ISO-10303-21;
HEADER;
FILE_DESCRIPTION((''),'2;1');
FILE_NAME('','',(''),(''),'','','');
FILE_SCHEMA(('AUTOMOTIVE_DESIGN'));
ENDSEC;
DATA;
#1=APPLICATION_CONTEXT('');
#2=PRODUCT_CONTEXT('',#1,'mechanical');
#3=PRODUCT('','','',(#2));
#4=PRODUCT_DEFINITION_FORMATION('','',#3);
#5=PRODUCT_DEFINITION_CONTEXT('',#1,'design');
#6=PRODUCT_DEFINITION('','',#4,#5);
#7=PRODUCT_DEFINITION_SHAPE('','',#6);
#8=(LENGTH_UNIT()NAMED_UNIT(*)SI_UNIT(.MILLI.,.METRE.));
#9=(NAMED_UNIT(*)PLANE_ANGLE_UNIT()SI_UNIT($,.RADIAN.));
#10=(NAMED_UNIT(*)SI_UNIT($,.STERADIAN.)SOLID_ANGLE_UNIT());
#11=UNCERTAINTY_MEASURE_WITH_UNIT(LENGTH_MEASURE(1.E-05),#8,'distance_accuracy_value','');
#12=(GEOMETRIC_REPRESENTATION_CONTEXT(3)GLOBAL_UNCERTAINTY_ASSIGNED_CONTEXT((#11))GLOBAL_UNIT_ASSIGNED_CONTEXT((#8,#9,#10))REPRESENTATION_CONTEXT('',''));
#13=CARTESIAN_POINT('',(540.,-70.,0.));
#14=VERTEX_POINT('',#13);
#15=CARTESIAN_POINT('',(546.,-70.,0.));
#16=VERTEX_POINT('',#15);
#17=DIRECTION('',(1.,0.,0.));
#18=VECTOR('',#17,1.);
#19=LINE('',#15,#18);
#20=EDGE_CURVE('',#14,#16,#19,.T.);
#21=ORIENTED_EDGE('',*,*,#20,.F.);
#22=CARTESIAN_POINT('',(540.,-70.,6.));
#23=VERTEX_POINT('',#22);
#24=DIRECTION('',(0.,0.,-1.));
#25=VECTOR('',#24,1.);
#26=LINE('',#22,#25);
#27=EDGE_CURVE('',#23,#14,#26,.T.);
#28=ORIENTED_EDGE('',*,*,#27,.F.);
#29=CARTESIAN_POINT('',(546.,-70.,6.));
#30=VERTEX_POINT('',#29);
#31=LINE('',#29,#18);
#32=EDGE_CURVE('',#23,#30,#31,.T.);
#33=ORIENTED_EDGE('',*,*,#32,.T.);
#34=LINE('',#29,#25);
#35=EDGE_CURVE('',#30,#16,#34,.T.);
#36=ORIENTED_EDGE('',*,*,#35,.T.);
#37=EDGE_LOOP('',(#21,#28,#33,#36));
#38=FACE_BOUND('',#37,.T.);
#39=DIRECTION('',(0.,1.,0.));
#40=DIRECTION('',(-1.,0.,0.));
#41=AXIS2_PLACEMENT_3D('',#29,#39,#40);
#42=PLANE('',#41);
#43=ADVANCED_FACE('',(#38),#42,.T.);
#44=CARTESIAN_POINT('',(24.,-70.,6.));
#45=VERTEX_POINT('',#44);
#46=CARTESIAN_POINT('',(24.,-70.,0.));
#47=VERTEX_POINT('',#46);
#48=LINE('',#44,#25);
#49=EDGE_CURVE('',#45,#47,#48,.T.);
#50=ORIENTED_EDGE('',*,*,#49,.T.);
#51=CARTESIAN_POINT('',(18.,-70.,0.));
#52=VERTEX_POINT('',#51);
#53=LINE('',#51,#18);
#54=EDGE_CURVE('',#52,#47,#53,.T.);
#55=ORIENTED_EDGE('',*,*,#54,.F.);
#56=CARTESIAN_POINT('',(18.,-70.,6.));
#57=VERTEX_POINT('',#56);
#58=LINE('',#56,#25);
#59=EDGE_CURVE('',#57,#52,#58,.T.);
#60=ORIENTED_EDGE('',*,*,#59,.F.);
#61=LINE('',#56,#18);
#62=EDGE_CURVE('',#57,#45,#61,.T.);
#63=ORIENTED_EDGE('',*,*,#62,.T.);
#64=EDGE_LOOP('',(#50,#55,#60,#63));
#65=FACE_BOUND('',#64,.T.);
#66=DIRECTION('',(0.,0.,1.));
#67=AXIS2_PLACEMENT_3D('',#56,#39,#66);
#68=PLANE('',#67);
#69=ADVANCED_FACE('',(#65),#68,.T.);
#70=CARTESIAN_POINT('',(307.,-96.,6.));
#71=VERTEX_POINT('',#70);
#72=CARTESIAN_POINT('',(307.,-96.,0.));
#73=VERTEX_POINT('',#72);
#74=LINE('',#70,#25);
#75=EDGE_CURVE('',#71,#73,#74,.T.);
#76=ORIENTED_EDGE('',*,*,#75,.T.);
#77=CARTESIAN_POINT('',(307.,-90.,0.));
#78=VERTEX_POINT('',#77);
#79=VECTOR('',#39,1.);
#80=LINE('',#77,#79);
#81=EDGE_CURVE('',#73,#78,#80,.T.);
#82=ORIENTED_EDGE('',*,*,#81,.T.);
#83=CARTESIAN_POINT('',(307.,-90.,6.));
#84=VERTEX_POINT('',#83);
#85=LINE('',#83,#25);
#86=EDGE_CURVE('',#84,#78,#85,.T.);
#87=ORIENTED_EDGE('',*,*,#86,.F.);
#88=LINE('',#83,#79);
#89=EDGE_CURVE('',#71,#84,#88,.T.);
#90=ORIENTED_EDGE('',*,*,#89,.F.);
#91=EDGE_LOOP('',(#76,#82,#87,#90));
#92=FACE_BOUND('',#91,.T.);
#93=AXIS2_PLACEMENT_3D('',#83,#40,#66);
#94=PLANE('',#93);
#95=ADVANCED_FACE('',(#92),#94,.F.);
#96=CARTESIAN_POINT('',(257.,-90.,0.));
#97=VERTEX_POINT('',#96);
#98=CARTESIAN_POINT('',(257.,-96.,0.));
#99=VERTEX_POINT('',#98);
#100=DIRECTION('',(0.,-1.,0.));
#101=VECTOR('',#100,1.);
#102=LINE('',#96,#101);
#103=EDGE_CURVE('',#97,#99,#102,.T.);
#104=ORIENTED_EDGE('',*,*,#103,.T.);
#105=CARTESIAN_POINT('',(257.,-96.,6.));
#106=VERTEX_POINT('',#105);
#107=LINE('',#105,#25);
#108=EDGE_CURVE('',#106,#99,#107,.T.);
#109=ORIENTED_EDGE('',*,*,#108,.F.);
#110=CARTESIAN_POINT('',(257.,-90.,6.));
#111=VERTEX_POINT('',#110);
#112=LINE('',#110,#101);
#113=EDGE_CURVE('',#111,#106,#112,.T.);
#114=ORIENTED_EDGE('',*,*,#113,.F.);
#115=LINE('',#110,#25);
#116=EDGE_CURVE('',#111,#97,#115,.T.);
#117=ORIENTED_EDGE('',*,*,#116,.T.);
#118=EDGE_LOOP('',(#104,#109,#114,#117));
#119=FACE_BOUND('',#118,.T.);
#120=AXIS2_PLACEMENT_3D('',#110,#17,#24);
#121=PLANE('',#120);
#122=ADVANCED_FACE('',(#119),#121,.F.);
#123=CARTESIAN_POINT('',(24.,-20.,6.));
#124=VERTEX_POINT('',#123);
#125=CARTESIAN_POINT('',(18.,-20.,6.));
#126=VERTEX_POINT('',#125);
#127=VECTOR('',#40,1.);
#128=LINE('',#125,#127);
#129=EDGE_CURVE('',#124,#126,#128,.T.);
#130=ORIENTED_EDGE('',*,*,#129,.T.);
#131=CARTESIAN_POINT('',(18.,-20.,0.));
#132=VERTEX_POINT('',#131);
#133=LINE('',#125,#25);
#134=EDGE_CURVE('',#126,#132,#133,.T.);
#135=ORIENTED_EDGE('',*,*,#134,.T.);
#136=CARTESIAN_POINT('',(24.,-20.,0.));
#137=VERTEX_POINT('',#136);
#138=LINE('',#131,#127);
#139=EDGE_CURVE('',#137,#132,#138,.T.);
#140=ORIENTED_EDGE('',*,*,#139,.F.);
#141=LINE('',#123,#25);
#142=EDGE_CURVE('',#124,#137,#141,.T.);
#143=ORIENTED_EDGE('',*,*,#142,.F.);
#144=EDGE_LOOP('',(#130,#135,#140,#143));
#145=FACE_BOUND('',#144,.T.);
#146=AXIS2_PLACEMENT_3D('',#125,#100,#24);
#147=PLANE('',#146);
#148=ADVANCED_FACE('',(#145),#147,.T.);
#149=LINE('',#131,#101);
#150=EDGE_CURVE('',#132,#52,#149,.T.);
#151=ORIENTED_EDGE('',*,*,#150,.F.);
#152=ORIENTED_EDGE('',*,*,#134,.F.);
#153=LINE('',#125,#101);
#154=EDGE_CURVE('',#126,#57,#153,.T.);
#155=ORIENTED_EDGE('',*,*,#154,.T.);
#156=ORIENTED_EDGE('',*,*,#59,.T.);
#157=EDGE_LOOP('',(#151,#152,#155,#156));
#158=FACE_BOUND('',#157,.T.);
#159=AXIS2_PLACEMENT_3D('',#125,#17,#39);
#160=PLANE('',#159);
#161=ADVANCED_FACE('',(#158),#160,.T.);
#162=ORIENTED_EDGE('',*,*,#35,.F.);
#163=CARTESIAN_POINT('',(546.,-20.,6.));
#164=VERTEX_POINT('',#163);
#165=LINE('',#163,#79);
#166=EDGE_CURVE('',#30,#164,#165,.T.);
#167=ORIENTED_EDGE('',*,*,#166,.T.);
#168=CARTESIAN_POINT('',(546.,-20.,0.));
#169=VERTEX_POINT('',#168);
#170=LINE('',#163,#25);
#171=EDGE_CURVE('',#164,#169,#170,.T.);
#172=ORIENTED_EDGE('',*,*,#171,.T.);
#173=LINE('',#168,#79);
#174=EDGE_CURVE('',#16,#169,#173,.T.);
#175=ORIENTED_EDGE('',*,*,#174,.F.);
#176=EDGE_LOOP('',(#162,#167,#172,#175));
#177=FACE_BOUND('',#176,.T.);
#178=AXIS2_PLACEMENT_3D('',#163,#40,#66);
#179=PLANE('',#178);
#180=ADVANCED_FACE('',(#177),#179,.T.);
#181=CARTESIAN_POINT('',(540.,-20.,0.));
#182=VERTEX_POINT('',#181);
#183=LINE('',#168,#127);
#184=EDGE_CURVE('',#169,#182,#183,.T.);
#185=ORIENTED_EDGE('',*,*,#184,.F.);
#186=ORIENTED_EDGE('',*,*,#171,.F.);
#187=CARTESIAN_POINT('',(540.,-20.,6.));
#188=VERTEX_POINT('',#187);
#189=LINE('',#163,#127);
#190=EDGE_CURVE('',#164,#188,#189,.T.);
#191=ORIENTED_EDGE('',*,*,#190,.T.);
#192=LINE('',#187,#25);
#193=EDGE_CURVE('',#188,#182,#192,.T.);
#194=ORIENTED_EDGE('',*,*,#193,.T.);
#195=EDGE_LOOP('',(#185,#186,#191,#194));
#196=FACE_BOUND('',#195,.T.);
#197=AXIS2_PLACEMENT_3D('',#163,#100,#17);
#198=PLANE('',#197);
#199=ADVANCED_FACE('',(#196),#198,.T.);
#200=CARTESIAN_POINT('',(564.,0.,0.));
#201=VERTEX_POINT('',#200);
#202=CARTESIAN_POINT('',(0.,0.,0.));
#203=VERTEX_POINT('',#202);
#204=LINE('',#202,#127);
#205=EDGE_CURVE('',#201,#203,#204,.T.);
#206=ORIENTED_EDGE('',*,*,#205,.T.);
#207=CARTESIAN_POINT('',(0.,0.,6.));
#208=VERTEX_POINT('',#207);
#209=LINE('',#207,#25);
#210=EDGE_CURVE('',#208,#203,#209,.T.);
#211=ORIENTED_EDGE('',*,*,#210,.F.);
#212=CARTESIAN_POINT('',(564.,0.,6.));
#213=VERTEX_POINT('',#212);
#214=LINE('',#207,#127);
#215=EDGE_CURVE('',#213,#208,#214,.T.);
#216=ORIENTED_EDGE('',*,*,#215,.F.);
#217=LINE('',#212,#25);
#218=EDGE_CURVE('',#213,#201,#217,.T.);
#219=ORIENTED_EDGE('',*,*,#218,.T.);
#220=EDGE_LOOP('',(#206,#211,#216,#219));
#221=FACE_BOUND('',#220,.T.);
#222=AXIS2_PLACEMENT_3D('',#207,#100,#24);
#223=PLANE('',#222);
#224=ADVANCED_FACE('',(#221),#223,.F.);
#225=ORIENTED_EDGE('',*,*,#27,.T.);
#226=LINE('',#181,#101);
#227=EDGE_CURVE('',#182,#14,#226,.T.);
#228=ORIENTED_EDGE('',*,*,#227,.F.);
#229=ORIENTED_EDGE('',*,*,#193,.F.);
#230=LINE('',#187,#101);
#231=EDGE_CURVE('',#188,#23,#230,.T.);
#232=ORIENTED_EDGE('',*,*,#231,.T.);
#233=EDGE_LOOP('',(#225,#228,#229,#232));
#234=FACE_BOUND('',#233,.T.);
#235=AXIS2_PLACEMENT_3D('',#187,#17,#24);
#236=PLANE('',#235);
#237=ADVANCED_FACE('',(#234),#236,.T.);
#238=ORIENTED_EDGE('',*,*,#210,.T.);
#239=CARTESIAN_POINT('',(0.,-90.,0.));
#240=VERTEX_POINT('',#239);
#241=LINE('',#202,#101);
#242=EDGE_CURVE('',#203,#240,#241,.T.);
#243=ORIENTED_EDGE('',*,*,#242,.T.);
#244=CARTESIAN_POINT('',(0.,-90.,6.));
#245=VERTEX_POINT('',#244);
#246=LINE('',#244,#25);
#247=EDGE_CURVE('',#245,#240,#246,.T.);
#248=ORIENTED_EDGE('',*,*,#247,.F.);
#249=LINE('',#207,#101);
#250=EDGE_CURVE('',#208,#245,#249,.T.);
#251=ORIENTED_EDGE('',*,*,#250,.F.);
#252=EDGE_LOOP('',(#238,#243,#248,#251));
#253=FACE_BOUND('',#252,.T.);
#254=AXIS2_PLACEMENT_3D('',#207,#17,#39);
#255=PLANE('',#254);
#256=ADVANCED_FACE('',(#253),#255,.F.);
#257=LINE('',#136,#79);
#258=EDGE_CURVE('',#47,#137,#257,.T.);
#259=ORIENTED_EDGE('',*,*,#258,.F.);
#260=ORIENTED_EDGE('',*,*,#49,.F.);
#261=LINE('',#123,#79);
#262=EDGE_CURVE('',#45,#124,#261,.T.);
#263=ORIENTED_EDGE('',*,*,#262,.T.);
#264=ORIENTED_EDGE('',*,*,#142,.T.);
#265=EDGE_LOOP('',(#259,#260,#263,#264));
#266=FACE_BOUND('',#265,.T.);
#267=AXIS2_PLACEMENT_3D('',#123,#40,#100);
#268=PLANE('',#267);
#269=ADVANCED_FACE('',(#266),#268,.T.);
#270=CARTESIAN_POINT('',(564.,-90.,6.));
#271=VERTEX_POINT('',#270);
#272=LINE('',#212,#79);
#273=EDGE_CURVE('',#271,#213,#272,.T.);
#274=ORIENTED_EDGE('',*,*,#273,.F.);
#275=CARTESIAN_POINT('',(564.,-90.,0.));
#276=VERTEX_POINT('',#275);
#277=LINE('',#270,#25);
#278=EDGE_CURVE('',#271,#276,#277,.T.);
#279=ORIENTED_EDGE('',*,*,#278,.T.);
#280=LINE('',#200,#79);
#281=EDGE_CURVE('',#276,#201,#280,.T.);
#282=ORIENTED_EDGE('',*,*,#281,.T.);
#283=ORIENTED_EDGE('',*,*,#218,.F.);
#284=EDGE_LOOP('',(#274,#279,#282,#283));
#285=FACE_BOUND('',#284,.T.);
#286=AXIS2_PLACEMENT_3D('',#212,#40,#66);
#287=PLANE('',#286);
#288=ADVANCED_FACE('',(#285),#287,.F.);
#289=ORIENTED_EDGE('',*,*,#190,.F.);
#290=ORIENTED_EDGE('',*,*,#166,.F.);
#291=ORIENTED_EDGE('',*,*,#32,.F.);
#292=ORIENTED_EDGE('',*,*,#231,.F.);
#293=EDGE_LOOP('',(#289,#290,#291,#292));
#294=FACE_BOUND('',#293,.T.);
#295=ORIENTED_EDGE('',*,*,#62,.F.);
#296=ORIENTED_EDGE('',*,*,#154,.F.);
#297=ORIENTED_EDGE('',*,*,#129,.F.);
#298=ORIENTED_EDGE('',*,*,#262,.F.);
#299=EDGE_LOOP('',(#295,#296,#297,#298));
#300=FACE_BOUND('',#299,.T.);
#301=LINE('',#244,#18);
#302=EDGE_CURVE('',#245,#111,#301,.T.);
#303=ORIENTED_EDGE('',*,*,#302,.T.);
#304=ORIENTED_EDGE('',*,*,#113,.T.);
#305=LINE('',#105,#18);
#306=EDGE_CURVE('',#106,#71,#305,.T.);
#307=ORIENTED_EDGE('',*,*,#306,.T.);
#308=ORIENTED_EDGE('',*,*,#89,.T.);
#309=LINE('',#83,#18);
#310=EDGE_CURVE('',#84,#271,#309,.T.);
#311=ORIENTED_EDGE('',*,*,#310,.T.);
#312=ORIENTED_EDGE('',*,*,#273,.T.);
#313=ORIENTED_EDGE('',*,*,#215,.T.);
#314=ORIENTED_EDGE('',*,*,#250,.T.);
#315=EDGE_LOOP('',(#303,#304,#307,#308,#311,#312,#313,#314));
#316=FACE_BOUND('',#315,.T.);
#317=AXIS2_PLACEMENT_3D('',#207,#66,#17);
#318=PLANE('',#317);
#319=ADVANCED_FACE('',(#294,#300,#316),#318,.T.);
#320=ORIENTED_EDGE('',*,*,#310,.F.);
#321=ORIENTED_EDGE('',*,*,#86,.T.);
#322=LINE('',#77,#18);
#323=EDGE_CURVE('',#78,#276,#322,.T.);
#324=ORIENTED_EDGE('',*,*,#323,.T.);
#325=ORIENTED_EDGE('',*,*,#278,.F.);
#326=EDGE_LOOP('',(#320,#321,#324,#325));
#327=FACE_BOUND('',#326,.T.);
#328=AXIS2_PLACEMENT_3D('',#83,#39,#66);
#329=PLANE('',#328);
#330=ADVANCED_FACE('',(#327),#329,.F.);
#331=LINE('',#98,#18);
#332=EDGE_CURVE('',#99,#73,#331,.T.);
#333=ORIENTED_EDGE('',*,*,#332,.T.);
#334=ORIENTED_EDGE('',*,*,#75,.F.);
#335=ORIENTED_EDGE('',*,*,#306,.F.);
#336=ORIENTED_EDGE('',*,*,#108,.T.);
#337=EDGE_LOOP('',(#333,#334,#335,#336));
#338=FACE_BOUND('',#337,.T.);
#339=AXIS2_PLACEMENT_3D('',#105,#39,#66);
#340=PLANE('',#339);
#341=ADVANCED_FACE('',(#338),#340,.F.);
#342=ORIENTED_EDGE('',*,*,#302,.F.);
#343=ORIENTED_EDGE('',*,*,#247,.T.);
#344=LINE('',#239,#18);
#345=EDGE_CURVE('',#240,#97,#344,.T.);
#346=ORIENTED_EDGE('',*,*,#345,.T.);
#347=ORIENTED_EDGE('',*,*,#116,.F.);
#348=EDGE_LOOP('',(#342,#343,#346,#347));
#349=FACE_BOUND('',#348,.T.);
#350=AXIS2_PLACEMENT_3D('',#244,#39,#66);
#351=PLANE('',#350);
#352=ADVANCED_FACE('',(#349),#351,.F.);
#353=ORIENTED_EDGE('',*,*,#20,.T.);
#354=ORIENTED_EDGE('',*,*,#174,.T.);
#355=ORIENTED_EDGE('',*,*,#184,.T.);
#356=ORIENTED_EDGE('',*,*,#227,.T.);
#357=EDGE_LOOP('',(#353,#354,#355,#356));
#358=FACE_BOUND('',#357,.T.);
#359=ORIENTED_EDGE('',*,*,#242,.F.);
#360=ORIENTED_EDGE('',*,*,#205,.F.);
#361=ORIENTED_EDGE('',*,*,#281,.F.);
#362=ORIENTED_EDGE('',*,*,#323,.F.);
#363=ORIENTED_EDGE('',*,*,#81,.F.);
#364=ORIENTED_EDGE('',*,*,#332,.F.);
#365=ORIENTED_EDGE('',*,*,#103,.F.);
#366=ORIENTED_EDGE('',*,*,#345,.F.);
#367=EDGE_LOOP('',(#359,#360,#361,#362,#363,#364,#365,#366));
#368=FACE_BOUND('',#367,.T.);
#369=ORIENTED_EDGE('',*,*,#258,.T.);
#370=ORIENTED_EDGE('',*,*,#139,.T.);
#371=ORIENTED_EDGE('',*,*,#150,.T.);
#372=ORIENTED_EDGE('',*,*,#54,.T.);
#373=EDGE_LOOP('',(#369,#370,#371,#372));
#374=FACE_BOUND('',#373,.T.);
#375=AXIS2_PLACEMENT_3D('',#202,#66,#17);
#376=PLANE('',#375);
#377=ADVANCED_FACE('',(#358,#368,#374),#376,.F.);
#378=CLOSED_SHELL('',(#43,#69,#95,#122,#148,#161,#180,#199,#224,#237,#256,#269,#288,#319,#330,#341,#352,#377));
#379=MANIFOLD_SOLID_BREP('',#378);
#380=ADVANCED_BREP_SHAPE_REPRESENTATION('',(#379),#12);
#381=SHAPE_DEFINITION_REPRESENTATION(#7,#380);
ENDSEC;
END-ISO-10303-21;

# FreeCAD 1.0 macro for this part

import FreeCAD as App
import Part
import Sketcher
Q = App.Units.Quantity


def add_polygon(sketch, points):
    """Adds a closed chain of lines whose ends are joined by coincident constraints."""
    first, n = sketch.GeometryCount, len(points)
    for a, b in zip(points, points[1:] + points[:1]):
        sketch.addGeometry(Part.LineSegment(App.Vector(*a, 0), App.Vector(*b, 0)), False)
    for i in range(n):
        sketch.addConstraint(Sketcher.Constraint("Coincident", first + i, 2, first + (i + 1) % n, 1))

doc = App.newDocument("Part")
body = doc.addObject("PartDesign::Body", "Body")

# Sketch on XY plane
sketch1 = doc.addObject("Sketcher::SketchObject", "Sketch")
body.addObject(sketch1)
sketch1.AttachmentSupport = (doc.XY_Plane, [""])
sketch1.MapMode = "FlatFace"
add_polygon(sketch1, [(564, 0), (0, 0), (0, -90), (257, -90), (257, -96), (307, -96), (307, -90), (564, -90)])  # lines 0-7
add_polygon(sketch1, [(540, -70), (540, -20), (546, -20), (546, -70)])  # lines 8-11
add_polygon(sketch1, [(18, -70), (18, -20), (24, -20), (24, -70)])  # lines 12-15
sketch1.addConstraint([
    Sketcher.Constraint("Horizontal", 0),
    Sketcher.Constraint("Vertical", 1),
    Sketcher.Constraint("Horizontal", 2),
    Sketcher.Constraint("Vertical", 3),
    Sketcher.Constraint("Horizontal", 4),
    Sketcher.Constraint("Vertical", 5),
    Sketcher.Constraint("Horizontal", 6),
    Sketcher.Constraint("Vertical", 7),
    Sketcher.Constraint("Vertical", 8),
    Sketcher.Constraint("Horizontal", 9),
    Sketcher.Constraint("Vertical", 10),
    Sketcher.Constraint("Horizontal", 11),
    Sketcher.Constraint("Vertical", 12),
    Sketcher.Constraint("Horizontal", 13),
    Sketcher.Constraint("Vertical", 14),
    Sketcher.Constraint("Horizontal", 15),
    Sketcher.Constraint("Coincident", 0, 2, -1, 1),
    Sketcher.Constraint("Horizontal", 2, 2, 5, 2),
    Sketcher.Constraint("Horizontal", 9, 2, 12, 2),
    Sketcher.Constraint("Horizontal", 11, 2, 14, 2),
    Sketcher.Constraint("Equal", 2, 6),
    Sketcher.Constraint("Equal", 11, 13),
    Sketcher.Constraint("Equal", 15, 3),
    Sketcher.Constraint("Equal", 4, 8),
    Sketcher.Constraint("DistanceX", 0, 2, 0, 1, Q("564 mm")),
    Sketcher.Constraint("DistanceX", 2, 1, 2, 2, Q("257 mm")),
    Sketcher.Constraint("DistanceX", 9, 1, 9, 2, Q("6 mm")),
    Sketcher.Constraint("DistanceY", 1, 2, 1, 1, Q("90 mm")),
    Sketcher.Constraint("DistanceX", -1, 1, 8, 2, Q("540 mm")),
    Sketcher.Constraint("DistanceY", 8, 2, -1, 1, Q("20 mm")),
    Sketcher.Constraint("DistanceX", -1, 1, 12, 2, Q("18 mm")),
])
pad1 = doc.addObject("PartDesign::Pad", "Pad")
body.addObject(pad1)
pad1.Profile = sketch1
pad1.Length = 6

doc.recompute()
